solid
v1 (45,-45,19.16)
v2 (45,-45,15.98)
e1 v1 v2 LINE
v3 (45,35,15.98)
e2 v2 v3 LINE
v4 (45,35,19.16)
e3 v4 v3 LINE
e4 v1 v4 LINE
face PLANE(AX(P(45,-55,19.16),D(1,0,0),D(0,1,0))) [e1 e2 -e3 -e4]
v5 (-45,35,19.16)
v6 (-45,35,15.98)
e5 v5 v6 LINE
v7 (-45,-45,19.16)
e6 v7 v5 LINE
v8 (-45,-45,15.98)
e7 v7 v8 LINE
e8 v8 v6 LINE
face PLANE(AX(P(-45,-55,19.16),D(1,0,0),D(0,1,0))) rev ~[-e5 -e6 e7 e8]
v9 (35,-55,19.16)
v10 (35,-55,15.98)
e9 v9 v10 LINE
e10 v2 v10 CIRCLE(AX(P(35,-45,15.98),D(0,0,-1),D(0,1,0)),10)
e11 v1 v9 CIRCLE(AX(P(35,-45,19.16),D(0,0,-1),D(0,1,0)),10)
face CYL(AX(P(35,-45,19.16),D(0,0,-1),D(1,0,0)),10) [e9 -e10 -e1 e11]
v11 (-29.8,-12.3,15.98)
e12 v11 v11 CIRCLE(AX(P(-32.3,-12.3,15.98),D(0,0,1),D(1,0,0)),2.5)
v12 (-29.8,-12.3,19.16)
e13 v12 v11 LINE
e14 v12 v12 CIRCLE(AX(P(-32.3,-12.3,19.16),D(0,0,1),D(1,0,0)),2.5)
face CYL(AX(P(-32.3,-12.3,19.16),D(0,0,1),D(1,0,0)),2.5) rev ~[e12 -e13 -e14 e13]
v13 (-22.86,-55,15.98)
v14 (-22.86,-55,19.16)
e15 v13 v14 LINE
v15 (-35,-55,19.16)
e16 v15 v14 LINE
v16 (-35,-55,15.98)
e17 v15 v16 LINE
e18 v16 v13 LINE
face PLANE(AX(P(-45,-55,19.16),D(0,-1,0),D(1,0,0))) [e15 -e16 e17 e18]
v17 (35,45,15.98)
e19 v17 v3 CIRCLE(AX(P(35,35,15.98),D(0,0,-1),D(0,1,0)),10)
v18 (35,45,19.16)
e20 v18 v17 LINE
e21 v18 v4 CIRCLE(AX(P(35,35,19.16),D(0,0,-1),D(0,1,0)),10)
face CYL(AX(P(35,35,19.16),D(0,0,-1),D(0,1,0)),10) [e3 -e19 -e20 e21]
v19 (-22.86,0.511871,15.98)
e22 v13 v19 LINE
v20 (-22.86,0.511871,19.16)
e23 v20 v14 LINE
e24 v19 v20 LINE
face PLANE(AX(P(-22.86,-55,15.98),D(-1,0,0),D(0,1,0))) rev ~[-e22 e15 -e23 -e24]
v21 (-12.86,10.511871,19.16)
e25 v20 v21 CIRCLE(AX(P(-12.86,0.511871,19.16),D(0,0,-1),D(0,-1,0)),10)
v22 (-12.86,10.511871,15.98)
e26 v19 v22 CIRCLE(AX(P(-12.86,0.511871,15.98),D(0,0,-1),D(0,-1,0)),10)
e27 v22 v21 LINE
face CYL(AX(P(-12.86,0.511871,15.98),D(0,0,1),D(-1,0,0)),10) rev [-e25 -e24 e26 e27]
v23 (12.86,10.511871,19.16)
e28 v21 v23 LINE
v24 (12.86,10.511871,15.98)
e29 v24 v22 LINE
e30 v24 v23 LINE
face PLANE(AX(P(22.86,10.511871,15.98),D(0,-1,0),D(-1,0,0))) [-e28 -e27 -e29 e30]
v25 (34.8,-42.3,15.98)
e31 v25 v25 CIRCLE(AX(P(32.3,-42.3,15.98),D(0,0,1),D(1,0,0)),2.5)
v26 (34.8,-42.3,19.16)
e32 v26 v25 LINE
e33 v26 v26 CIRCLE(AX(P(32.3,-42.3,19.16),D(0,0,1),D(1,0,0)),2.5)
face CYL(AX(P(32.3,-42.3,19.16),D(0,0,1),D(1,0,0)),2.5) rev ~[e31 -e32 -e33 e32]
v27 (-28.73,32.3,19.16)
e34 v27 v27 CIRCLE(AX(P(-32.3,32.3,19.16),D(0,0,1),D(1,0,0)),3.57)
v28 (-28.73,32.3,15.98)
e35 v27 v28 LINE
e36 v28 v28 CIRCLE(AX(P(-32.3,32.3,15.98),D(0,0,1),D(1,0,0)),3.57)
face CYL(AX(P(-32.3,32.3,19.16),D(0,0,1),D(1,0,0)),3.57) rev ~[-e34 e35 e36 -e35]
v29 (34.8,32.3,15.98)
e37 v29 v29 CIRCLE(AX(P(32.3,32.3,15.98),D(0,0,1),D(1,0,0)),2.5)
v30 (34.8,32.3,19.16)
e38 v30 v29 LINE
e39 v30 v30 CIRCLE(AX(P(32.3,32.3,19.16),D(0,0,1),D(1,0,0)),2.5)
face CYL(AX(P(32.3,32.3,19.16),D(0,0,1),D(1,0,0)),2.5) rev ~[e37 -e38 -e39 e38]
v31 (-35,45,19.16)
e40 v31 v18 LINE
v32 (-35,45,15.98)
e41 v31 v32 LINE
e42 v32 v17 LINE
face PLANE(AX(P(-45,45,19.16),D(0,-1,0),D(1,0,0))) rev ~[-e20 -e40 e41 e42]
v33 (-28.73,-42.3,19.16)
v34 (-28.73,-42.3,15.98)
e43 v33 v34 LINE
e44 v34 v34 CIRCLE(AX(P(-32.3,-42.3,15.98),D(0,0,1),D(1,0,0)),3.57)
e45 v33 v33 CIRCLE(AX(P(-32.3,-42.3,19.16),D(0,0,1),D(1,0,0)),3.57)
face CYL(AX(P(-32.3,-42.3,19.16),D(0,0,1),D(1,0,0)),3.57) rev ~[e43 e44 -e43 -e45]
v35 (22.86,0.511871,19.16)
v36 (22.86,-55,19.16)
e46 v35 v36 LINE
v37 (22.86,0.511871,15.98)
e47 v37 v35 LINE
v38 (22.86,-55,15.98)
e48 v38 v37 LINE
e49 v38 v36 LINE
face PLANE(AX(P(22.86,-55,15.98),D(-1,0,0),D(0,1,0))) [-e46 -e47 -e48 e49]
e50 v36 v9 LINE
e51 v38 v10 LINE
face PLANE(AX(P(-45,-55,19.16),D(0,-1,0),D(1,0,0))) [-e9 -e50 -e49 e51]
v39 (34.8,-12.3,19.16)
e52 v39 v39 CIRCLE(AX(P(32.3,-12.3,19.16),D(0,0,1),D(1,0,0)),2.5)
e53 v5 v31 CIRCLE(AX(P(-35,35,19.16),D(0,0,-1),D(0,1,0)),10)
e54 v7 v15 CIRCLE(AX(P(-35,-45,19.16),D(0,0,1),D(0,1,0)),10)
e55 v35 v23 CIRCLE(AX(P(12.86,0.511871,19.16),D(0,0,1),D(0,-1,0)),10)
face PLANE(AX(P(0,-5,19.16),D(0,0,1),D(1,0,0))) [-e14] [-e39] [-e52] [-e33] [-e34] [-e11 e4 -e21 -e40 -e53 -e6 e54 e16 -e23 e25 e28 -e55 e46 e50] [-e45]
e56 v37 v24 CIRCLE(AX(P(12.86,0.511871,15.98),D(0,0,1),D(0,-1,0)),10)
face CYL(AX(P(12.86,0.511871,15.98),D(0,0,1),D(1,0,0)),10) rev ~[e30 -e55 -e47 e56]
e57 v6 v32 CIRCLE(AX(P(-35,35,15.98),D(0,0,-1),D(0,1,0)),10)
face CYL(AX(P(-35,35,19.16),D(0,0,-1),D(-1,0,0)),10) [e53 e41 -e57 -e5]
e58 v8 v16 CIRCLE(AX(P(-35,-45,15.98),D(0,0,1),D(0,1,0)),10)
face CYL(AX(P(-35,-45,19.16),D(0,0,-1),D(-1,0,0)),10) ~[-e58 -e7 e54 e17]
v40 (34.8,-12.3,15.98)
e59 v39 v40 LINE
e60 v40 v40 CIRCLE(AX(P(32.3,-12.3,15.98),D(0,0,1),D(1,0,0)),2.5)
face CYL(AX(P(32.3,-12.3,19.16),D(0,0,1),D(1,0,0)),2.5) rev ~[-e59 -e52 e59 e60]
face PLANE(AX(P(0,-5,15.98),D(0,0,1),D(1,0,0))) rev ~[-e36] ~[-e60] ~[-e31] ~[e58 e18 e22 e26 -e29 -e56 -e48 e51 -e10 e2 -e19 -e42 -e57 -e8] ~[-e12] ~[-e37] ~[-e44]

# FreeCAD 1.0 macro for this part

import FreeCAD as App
import Part
import Sketcher
Q = App.Units.Quantity


def edges_at(feature, points):
    """Names of the edges that pass closest to the given points."""
    edges = feature.Shape.Edges
    near = lambda p: min(range(len(edges)), key=lambda i: edges[i].distToShape(Part.Vertex(*p))[0])
    return sorted({f"Edge{near(p) + 1}" for p in points})


def add_polygon(sketch, points):
    """Adds a closed chain of lines whose ends are joined by coincident constraints."""
    first, n = sketch.GeometryCount, len(points)
    for a, b in zip(points, points[1:] + points[:1]):
        sketch.addGeometry(Part.LineSegment(App.Vector(*a, 0), App.Vector(*b, 0)), False)
    for i in range(n):
        sketch.addConstraint(Sketcher.Constraint("Coincident", first + i, 2, first + (i + 1) % n, 1))

doc = App.newDocument("Part")
body = doc.addObject("PartDesign::Body", "Body")

# Sketch on XY plane
sketch1 = doc.addObject("Sketcher::SketchObject", "Sketch")
body.addObject(sketch1)
sketch1.AttachmentSupport = (doc.XY_Plane, [""])
sketch1.MapMode = "FlatFace"
sketch1.AttachmentOffset = App.Placement(App.Vector(0, 0, 19.16), App.Rotation())
add_polygon(sketch1, [(-45, 45), (-45, -55), (45, -55), (45, 45)])  # lines 0-3
sketch1.addGeometry(Part.Circle(App.Vector(-32.3, -42.3, 0), App.Vector(0, 0, 1), 3.6), False)  # 4
sketch1.addGeometry(Part.Circle(App.Vector(-32.3, -12.3, 0), App.Vector(0, 0, 1), 2.5), False)  # 5
sketch1.addGeometry(Part.Circle(App.Vector(32.3, -42.3, 0), App.Vector(0, 0, 1), 2.5), False)  # 6
sketch1.addGeometry(Part.Circle(App.Vector(32.3, -12.3, 0), App.Vector(0, 0, 1), 2.5), False)  # 7
sketch1.addGeometry(Part.Circle(App.Vector(-32.3, 32.3, 0), App.Vector(0, 0, 1), 3.6), False)  # 8
sketch1.addGeometry(Part.Circle(App.Vector(32.3, 32.3, 0), App.Vector(0, 0, 1), 2.5), False)  # 9
sketch1.addConstraint(Sketcher.Constraint("Vertical", 0))
sketch1.addConstraint(Sketcher.Constraint("Horizontal", 1))
sketch1.addConstraint(Sketcher.Constraint("Vertical", 2))
sketch1.addConstraint(Sketcher.Constraint("Horizontal", 3))
sketch1.addConstraint(Sketcher.Constraint("Equal", 5, 6))
sketch1.addConstraint(Sketcher.Constraint("Equal", 6, 7))
sketch1.addConstraint(Sketcher.Constraint("Equal", 4, 8))
sketch1.addConstraint(Sketcher.Constraint("Equal", 7, 9))
sketch1.addConstraint(Sketcher.Constraint("Symmetric", 4, 3, 6, 3, -2))
sketch1.addConstraint(Sketcher.Constraint("Symmetric", 5, 3, 7, 3, -2))
sketch1.addConstraint(Sketcher.Constraint("Symmetric", 8, 3, 9, 3, -2))
sketch1.addConstraint(Sketcher.Constraint("Vertical", 4, 3, 5, 3))
sketch1.addConstraint(Sketcher.Constraint("Vertical", 5, 3, 8, 3))
sketch1.addConstraint(Sketcher.Constraint("Diameter", 5, Q("5 mm")))
sketch1.addConstraint(Sketcher.Constraint("Diameter", 4, Q("7.14 mm")))
sketch1.addConstraint(Sketcher.Constraint("DistanceX", 1, 1, 1, 2, Q("90 mm")))
sketch1.addConstraint(Sketcher.Constraint("DistanceY", 0, 2, 0, 1, Q("100 mm")))
sketch1.addConstraint(Sketcher.Constraint("DistanceX", 0, 2, -1, 1, Q("45 mm")))
sketch1.addConstraint(Sketcher.Constraint("DistanceY", 0, 2, -1, 1, Q("55 mm")))
sketch1.addConstraint(Sketcher.Constraint("DistanceY", 4, 3, 5, 3, Q("30 mm")))
sketch1.addConstraint(Sketcher.Constraint("DistanceX", 4, 3, -1, 1, Q("32.3 mm")))
sketch1.addConstraint(Sketcher.Constraint("DistanceY", 4, 3, -1, 1, Q("42.3 mm")))
sketch1.addConstraint(Sketcher.Constraint("DistanceY", -1, 1, 8, 3, Q("32.3 mm")))
pad1 = doc.addObject("PartDesign::Pad", "Pad")
body.addObject(pad1)
pad1.Profile = sketch1
pad1.Length = 3.18
pad1.Reversed = True

# Sketch on XY plane
sketch2 = doc.addObject("Sketcher::SketchObject", "Sketch001")
body.addObject(sketch2)
sketch2.AttachmentSupport = (doc.XY_Plane, [""])
sketch2.MapMode = "FlatFace"
sketch2.AttachmentOffset = App.Placement(App.Vector(0, 0, 15.98), App.Rotation())
add_polygon(sketch2, [(23, 11), (23, -55), (-23, -55), (-23, 11)])  # lines 0-3
sketch2.addConstraint(Sketcher.Constraint("Vertical", 0))
sketch2.addConstraint(Sketcher.Constraint("Horizontal", 1))
sketch2.addConstraint(Sketcher.Constraint("Vertical", 2))
sketch2.addConstraint(Sketcher.Constraint("Horizontal", 3))
sketch2.addConstraint(Sketcher.Constraint("DistanceY", 0, 2, -1, 1, Q("55 mm")))
sketch2.addConstraint(Sketcher.Constraint("DistanceX", 1, 2, 1, 1, Q("45.72 mm")))
sketch2.addConstraint(Sketcher.Constraint("DistanceX", -1, 1, 0, 2, Q("22.86 mm")))
sketch2.addConstraint(Sketcher.Constraint("DistanceY", 0, 2, 0, 1, Q("65.511871 mm")))
pocket1 = doc.addObject("PartDesign::Pocket", "Pocket")
body.addObject(pocket1)
pocket1.Profile = sketch2
pocket1.Type = "ThroughAll"
pocket1.Reversed = True
doc.recompute()

fillet = doc.addObject("PartDesign::Fillet", "Fillet")
body.addObject(fillet)
fillet.Base = (pocket1, edges_at(pocket1, [
    (22.86, 10.512, 17.57),
    (-22.86, 10.512, 17.57),
    (-45, 45, 17.57),
    (45, 45, 17.57),
    (45, -55, 17.57),
    (-45, -55, 17.57),
]))
fillet.Radius = 10

doc.recompute()
